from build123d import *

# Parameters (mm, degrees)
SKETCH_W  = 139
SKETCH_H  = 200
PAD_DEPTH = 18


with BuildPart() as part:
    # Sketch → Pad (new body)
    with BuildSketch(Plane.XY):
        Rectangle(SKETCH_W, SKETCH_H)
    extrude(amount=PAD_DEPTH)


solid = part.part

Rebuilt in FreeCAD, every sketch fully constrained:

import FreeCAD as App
import Part
import Sketcher

V = App.Vector


def add_polygon(sketch, points):
    """Adds a closed chain of lines whose ends are joined by coincident constraints."""
    first, n = sketch.GeometryCount, len(points)
    for a, b in zip(points, points[1:] + points[:1]):
        sketch.addGeometry(Part.LineSegment(App.Vector(*a, 0), App.Vector(*b, 0)), False)
    for i in range(n):
        sketch.addConstraint(Sketcher.Constraint("Coincident", first + i, 2, first + (i + 1) % n, 1))

doc = App.newDocument("Part")
body = doc.addObject("PartDesign::Body", "Body")

sketch1 = body.newObject("Sketcher::SketchObject", "Sketch")
sketch1.AttachmentSupport = (doc.getObject("XY_Plane"), [""])
sketch1.MapMode = "FlatFace"
add_polygon(sketch1, [(-70, 100), (-70, -100), (70, -100), (70, 100)])
sketch1.addConstraint([
    Sketcher.Constraint("Vertical", 0),
    Sketcher.Constraint("Horizontal", 1),
    Sketcher.Constraint("Vertical", 2),
    Sketcher.Constraint("Horizontal", 3),
    Sketcher.Constraint("Symmetric", 0, 2, 2, 2, -1, 1),
    Sketcher.Constraint("DistanceX", 1, 1, 1, 2, 139.0),
    Sketcher.Constraint("DistanceY", 0, 2, 0, 1, 200.0),
])
pad1 = body.newObject("PartDesign::Pad", "Pad")
pad1.Profile = sketch1
pad1.Length = 18

doc.recompute()
